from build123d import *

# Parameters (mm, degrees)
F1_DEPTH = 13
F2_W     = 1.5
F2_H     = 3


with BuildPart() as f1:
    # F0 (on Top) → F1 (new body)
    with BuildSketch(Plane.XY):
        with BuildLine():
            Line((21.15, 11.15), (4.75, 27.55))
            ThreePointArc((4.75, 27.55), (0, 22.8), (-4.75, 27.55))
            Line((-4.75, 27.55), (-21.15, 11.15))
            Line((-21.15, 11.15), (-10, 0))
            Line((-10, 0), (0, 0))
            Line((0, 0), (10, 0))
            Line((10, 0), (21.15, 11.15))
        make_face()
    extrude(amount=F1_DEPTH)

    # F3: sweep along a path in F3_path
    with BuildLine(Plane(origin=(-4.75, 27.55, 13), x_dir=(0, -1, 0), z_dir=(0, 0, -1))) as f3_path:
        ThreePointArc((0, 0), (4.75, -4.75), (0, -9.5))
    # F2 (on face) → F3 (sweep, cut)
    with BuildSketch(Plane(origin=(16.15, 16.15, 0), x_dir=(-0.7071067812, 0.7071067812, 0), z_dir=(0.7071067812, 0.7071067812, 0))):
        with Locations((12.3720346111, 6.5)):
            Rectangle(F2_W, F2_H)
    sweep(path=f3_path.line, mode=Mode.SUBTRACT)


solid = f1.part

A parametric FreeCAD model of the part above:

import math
import FreeCAD as App
import Part
import Sketcher
from FreeCAD import Vector


def add_polygon(sketch, points):
    """Adds a closed chain of lines whose ends are joined by coincident constraints."""
    first, n = sketch.GeometryCount, len(points)
    for a, b in zip(points, points[1:] + points[:1]):
        sketch.addGeometry(Part.LineSegment(App.Vector(*a, 0), App.Vector(*b, 0)), False)
    for i in range(n):
        sketch.addConstraint(Sketcher.Constraint("Coincident", first + i, 2, first + (i + 1) % n, 1))

doc = App.newDocument("Part")
body = doc.addObject("PartDesign::Body", "Body")

# Sketch on XY plane
sketch1 = body.newObject("Sketcher::SketchObject", "Sketch")
sketch1.AttachmentSupport = (doc.getObject("XY_Plane"), [""])
sketch1.MapMode = "FlatFace"
sketch1.addGeometry([
    Part.LineSegment(Vector(21.1, 11.2, 0), Vector(4.8, 27.6, 0)),  # 0
    Part.ArcOfCircle(Part.Circle(Vector(0, 27.6, 0), Vector(0, 0, 1), 4.8), math.radians(180), math.radians(360)),  # 1
    Part.LineSegment(Vector(-4.8, 27.6, 0), Vector(-21.1, 11.2, 0)),  # 2
    Part.LineSegment(Vector(-21.1, 11.2, 0), Vector(-10, 0, 0)),  # 3
    Part.LineSegment(Vector(-10, 0, 0), Vector(10, 0, 0)),  # 4
    Part.LineSegment(Vector(10, 0, 0), Vector(21.1, 11.2, 0)),  # 5
], False)
sketch1.addConstraint([
    Sketcher.Constraint("Coincident", 0, 2, 1, 2),
    Sketcher.Constraint("Coincident", 1, 1, 2, 1),
    Sketcher.Constraint("Coincident", 2, 2, 3, 1),
    Sketcher.Constraint("Coincident", 3, 2, 4, 1),
    Sketcher.Constraint("Coincident", 4, 2, 5, 1),
    Sketcher.Constraint("Coincident", 5, 2, 0, 1),
    Sketcher.Constraint("Horizontal", 4),
    Sketcher.Constraint("Symmetric", 3, 2, 4, 2, -1, 1),
    Sketcher.Constraint("Symmetric", 0, 2, 1, 1, -2),
    Sketcher.Constraint("Symmetric", 2, 2, 5, 2, -2),
    Sketcher.Constraint("Perpendicular", 0, 2),
    Sketcher.Constraint("Perpendicular", 2, 3),
    Sketcher.Constraint("Horizontal", 1, 3, 0, 2),
    Sketcher.Constraint("DistanceX", 4, 1, 4, 2, 20.0),
    Sketcher.Constraint("Radius", 1, 4.75),
    Sketcher.Constraint("DistanceX", 2, 2, 1, 1, 16.4),
])
pad1 = body.newObject("PartDesign::Pad", "Pad")
pad1.Profile = sketch1
pad1.Length = 13

# Sketch on an angled plane
sketch2 = body.newObject("Sketcher::SketchObject", "Sketch001")
sketch2.Placement = App.Placement(Vector(16.15, 16.15, 0), App.Rotation(Vector(-0.707106781, 0.707106781, 0), Vector(0, 0, 0.999999999), Vector(0.707106781, 0.707106781, 0), "ZXY"))
add_polygon(sketch2, [(11.6, 8), (11.6, 5), (13.1, 5), (13.1, 8)])  # lines 0-3
sketch2.addConstraint([
    Sketcher.Constraint("Vertical", 0),
    Sketcher.Constraint("Horizontal", 1),
    Sketcher.Constraint("Vertical", 2),
    Sketcher.Constraint("Horizontal", 3),
    Sketcher.Constraint("DistanceY", 0, 2, 0, 1, 3.0),
    Sketcher.Constraint("DistanceX", 1, 1, 1, 2, 1.5),
    Sketcher.Constraint("DistanceY", -1, 1, 0, 2, 5.0),
    Sketcher.Constraint("DistanceX", -1, 1, 0, 2, 11.622035),
])

# Sketch on XY plane
sketch3 = body.newObject("Sketcher::SketchObject", "Sketch002")
sketch3.AttachmentSupport = (doc.getObject("XY_Plane"), [""])
sketch3.MapMode = "FlatFace"
sketch3.AttachmentOffset = App.Placement(Vector(0, 0, 13), App.Rotation())
sketch3.addGeometry(Part.ArcOfCircle(Part.Circle(Vector(0, 27.6, 0), Vector(0, 0, 1), 4.8), math.radians(180), math.radians(360)), False)
sketch3.addConstraint([
    Sketcher.Constraint("Symmetric", 0, 1, 0, 2, -2),
    Sketcher.Constraint("Radius", 0, 4.75),
    Sketcher.Constraint("DistanceY", -1, 1, 0, 3, 27.55),
    Sketcher.Constraint("DistanceY", -1, 1, 0, 1, 27.55),
])
doc.recompute()

subtractivepipe = body.newObject("PartDesign::SubtractivePipe", "SubtractivePipe")
subtractivepipe.Profile = sketch2
subtractivepipe.Spine = (sketch3, ["Edge1"])

doc.recompute()
